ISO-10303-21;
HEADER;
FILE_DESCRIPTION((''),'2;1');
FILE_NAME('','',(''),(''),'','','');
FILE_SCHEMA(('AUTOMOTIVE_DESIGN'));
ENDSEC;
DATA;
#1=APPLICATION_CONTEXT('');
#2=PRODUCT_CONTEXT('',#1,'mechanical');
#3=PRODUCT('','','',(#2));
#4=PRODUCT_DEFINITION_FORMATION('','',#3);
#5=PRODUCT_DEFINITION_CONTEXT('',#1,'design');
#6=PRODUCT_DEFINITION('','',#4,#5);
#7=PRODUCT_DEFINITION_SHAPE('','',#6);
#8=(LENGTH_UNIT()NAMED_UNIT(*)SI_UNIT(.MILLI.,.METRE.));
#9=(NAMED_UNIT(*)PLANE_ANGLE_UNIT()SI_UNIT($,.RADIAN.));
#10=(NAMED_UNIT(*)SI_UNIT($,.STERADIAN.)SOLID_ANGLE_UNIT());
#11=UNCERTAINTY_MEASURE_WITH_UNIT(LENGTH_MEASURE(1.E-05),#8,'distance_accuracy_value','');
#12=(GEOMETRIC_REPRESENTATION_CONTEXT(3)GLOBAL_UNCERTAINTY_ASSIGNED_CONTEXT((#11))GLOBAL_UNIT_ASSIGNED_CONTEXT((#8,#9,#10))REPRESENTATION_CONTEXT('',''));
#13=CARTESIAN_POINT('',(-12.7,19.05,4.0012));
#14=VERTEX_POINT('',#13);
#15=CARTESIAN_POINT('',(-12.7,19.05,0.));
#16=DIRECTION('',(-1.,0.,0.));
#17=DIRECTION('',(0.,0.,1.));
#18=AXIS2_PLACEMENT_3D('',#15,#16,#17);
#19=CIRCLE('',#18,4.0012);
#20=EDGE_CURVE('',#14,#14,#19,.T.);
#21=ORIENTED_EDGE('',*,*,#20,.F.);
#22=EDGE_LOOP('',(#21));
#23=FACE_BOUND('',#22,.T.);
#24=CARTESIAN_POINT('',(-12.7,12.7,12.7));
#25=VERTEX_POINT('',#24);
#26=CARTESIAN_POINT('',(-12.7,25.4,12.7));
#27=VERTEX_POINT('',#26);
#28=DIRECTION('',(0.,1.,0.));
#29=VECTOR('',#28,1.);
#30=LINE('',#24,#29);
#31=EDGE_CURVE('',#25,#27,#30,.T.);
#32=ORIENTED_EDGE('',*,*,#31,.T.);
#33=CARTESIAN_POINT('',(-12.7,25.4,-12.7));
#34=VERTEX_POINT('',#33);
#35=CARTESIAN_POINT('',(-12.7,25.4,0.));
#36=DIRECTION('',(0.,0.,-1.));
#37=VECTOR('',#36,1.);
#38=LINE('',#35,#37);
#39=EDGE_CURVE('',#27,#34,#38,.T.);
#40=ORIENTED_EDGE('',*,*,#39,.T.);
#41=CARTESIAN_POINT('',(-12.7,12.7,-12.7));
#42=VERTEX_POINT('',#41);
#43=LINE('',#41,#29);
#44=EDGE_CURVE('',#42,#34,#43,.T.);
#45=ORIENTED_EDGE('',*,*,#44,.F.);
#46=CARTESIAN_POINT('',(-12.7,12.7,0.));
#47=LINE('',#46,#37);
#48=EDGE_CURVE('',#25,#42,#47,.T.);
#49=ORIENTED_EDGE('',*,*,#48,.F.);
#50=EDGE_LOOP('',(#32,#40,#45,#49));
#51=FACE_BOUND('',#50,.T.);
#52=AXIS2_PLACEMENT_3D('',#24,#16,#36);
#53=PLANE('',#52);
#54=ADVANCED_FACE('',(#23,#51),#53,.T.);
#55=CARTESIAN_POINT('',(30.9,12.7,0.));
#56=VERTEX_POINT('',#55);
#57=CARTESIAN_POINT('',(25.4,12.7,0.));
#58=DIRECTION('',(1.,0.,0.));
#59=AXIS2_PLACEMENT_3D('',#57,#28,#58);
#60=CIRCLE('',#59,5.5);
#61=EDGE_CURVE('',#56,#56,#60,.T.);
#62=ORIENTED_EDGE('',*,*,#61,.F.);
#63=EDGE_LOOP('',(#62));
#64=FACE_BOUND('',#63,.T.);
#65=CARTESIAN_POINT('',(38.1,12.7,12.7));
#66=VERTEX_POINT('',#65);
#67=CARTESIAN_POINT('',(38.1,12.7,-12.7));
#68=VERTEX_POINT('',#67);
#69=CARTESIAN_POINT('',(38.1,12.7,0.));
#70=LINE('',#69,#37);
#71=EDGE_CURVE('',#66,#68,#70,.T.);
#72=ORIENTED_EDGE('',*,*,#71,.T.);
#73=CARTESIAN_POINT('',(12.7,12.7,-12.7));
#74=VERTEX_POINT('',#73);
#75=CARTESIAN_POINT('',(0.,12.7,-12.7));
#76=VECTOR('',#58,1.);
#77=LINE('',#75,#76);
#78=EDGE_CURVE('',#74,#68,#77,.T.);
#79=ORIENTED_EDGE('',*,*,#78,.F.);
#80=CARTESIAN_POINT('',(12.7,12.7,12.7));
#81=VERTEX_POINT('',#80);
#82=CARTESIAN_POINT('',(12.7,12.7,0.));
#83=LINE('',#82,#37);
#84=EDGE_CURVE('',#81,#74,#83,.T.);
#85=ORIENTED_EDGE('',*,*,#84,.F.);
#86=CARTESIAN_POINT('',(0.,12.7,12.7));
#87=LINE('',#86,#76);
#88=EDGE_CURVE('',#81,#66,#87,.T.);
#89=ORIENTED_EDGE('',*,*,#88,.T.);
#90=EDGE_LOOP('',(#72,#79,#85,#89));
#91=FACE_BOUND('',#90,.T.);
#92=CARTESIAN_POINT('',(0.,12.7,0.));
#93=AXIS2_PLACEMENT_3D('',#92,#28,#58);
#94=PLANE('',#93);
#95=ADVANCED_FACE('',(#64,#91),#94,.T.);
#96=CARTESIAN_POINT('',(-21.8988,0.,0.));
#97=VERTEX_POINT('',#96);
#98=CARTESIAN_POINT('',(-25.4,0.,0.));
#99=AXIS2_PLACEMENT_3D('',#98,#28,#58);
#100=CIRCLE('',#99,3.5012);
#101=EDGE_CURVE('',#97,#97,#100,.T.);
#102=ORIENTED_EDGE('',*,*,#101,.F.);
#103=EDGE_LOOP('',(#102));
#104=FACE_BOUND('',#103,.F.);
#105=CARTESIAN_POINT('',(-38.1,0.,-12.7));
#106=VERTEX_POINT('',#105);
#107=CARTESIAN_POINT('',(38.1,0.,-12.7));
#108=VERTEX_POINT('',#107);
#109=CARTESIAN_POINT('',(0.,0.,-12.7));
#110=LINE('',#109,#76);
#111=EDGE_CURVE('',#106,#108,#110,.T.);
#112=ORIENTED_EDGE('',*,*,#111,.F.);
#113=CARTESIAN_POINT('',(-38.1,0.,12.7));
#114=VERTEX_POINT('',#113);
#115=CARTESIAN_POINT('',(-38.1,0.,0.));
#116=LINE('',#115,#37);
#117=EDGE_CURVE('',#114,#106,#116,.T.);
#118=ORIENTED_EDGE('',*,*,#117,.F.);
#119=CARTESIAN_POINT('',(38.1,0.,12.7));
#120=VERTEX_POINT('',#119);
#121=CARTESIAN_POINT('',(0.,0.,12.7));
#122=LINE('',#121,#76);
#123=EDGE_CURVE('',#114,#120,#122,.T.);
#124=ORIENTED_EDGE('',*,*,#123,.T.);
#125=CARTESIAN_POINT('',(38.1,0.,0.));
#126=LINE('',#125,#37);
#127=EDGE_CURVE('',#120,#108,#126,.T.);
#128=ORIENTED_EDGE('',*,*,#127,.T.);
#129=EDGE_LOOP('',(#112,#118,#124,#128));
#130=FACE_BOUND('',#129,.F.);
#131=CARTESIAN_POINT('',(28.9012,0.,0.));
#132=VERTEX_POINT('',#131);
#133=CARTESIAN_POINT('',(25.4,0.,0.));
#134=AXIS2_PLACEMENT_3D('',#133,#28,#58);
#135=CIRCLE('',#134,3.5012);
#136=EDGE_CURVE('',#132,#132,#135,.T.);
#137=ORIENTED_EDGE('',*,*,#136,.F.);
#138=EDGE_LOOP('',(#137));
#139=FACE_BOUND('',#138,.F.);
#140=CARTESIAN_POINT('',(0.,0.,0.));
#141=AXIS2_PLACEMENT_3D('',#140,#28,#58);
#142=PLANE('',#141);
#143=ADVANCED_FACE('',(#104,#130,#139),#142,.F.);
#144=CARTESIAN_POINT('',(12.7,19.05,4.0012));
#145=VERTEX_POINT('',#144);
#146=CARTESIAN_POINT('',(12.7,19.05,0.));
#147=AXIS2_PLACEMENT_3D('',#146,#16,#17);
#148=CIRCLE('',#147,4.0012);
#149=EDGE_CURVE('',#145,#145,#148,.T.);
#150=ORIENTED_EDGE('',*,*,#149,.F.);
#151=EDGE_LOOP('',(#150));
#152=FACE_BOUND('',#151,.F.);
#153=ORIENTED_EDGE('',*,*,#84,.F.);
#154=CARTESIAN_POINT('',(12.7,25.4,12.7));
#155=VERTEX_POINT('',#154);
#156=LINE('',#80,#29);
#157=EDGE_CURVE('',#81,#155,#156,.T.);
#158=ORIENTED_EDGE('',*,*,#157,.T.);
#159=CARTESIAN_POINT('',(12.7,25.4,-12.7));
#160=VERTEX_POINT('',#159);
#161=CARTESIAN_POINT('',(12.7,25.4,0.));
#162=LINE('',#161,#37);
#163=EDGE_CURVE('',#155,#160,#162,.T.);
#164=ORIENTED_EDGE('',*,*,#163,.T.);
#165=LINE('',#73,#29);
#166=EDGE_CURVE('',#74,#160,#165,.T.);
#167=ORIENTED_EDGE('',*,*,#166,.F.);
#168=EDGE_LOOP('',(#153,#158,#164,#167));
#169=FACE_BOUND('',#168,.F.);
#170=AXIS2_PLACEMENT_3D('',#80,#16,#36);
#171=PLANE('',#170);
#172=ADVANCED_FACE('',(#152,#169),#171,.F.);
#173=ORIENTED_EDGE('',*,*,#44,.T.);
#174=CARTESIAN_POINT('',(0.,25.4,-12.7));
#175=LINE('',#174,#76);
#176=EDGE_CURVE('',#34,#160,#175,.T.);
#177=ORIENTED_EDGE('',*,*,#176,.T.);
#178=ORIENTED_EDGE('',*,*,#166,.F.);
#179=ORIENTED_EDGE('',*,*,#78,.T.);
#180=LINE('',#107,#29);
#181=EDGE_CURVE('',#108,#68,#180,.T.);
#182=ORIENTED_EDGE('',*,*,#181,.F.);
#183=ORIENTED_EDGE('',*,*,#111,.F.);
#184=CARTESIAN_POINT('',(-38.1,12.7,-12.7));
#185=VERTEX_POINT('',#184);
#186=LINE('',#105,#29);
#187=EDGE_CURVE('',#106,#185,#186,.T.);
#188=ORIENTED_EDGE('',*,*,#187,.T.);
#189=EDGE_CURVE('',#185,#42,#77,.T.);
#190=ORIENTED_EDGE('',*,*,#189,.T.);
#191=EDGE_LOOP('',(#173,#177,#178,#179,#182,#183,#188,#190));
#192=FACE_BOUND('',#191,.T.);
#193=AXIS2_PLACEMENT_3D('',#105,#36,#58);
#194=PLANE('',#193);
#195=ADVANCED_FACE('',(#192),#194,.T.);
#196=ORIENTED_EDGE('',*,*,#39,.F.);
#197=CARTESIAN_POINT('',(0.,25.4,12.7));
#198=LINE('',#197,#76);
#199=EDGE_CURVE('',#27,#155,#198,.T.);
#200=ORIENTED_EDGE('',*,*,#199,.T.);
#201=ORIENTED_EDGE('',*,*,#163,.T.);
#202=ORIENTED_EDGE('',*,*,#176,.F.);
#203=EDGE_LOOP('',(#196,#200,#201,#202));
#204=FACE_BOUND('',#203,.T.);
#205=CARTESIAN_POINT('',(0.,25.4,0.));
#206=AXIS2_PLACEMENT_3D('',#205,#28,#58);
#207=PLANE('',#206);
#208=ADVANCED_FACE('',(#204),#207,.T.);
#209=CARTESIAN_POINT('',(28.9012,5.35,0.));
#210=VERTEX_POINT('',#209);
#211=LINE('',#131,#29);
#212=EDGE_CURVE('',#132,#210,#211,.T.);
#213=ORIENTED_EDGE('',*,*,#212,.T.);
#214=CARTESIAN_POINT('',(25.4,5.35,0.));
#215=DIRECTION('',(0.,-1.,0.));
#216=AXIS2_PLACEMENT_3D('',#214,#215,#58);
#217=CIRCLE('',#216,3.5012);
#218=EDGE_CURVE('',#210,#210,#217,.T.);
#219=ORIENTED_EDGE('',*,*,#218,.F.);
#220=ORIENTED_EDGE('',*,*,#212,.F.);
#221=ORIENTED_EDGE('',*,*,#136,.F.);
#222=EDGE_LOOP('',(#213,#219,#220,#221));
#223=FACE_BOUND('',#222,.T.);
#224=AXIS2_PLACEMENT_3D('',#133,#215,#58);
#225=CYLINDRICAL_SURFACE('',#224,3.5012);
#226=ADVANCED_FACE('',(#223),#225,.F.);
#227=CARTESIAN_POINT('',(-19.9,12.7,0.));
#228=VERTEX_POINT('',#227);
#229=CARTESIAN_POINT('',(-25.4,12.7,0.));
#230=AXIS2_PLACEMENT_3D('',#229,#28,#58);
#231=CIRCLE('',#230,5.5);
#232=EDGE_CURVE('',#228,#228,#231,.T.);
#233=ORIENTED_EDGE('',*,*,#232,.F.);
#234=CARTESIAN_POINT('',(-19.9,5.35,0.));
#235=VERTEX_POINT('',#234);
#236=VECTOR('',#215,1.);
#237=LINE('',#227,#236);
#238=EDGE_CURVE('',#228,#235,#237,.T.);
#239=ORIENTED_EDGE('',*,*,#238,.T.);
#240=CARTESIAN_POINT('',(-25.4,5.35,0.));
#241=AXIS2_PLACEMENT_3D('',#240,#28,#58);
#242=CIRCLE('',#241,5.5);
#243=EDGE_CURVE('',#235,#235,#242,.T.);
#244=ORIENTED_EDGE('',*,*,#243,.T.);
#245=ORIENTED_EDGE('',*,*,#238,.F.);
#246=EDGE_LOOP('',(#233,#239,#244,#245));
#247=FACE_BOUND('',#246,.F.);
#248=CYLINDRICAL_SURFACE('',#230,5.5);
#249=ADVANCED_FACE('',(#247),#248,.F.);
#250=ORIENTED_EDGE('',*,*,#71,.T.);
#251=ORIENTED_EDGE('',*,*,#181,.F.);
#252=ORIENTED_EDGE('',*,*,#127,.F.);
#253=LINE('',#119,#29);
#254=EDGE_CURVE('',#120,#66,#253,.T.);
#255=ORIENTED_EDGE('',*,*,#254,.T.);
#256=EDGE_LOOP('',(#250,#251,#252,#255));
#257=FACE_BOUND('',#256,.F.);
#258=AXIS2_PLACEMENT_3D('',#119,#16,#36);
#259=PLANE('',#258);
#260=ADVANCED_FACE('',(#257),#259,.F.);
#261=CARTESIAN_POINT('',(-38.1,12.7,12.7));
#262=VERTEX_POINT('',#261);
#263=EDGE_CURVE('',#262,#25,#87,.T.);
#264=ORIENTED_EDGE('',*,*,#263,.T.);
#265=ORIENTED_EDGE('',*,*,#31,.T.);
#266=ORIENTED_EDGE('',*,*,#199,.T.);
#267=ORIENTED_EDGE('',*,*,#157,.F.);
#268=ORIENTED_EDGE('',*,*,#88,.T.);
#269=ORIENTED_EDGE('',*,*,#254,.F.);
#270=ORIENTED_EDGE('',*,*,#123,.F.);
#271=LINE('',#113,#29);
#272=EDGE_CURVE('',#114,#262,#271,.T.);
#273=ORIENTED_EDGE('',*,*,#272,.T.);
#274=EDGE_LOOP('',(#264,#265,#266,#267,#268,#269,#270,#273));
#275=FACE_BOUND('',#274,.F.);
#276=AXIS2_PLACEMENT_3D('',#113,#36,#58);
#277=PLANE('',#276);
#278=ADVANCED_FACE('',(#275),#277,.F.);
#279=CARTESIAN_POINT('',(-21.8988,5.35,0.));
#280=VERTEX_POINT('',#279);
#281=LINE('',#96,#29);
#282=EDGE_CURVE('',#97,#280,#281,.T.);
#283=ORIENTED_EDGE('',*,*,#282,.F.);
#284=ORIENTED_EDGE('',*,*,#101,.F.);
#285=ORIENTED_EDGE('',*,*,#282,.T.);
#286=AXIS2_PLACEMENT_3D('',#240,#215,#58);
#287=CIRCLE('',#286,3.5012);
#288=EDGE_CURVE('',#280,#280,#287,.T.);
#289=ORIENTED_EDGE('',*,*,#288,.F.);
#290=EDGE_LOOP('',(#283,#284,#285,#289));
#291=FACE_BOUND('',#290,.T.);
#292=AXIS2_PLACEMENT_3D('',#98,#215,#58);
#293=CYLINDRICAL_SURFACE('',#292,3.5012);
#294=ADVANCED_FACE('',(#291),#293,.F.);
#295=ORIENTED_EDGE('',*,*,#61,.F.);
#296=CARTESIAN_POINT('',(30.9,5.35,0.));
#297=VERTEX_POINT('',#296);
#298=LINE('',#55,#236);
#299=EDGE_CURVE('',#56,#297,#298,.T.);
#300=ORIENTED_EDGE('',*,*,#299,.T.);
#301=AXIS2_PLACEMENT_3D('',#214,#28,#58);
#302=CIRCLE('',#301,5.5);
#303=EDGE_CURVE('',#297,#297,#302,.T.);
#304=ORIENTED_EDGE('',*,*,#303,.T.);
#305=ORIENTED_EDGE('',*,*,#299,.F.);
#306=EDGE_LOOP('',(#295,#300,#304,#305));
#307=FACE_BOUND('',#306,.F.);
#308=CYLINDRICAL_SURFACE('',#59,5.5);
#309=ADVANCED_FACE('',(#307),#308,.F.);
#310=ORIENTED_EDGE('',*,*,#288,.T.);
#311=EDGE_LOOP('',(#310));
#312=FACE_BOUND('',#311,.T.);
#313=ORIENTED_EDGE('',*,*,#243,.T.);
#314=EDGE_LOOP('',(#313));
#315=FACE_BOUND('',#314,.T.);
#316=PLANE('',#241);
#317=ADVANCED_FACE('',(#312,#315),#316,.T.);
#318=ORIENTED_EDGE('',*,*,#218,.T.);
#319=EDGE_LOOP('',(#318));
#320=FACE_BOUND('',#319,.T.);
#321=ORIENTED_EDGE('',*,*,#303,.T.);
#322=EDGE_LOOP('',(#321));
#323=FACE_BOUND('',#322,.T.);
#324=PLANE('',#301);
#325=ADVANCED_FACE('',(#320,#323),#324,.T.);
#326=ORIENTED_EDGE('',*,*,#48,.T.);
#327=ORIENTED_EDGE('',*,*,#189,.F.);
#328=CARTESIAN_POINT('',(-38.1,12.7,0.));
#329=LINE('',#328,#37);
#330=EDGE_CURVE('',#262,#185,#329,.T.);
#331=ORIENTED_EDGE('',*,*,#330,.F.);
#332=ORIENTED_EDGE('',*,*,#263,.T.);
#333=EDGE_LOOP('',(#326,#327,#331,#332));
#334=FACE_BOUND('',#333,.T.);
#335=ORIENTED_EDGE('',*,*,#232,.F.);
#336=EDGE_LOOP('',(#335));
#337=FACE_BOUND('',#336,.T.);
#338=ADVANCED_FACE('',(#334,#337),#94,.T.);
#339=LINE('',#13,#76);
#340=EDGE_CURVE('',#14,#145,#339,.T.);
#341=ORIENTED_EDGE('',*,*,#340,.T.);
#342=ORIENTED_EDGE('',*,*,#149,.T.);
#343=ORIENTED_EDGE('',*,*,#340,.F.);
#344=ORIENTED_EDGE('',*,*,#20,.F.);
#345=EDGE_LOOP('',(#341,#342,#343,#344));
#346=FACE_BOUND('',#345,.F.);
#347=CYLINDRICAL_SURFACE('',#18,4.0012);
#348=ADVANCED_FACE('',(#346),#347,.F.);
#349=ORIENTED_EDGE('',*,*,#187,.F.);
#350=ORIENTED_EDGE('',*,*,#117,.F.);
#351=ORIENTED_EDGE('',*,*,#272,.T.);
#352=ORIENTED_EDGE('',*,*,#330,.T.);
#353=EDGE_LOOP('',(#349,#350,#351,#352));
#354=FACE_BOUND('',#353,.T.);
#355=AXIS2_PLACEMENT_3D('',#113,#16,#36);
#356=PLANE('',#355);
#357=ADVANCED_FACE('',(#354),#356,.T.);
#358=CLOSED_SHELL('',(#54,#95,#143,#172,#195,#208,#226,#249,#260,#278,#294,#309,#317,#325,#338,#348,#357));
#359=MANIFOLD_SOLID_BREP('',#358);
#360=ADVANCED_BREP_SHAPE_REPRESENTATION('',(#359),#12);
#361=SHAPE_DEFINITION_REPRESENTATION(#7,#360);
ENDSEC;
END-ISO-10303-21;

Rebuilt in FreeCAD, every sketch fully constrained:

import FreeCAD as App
import Part
import Sketcher
Q = App.Units.Quantity


def add_polygon(sketch, points):
    """Adds a closed chain of lines whose ends are joined by coincident constraints."""
    first, n = sketch.GeometryCount, len(points)
    for a, b in zip(points, points[1:] + points[:1]):
        sketch.addGeometry(Part.LineSegment(App.Vector(*a, 0), App.Vector(*b, 0)), False)
    for i in range(n):
        sketch.addConstraint(Sketcher.Constraint("Coincident", first + i, 2, first + (i + 1) % n, 1))

doc = App.newDocument("Part")
body = doc.addObject("PartDesign::Body", "Body")

sketch1 = doc.addObject("Sketcher::SketchObject", "Sketch")
body.addObject(sketch1)
sketch1.AttachmentSupport = (doc.XZ_Plane, [""])
sketch1.MapMode = "FlatFace"
add_polygon(sketch1, [(-38.1, -12.7), (-38.1, 12.7), (38.1, 12.7), (38.1, -12.7)])
sketch1.addGeometry(Part.Circle(App.Vector(-25.4, 0, 0), App.Vector(0, 0, 1), 3.5), False)
sketch1.addGeometry(Part.Circle(App.Vector(25.4, 0, 0), App.Vector(0, 0, 1), 3.5), False)
sketch1.addConstraint([
    Sketcher.Constraint("Vertical", 0),
    Sketcher.Constraint("Horizontal", 1),
    Sketcher.Constraint("Vertical", 2),
    Sketcher.Constraint("Horizontal", 3),
    Sketcher.Constraint("Equal", 4, 5),
    Sketcher.Constraint("Symmetric", 4, 3, 5, 3, -1, 1),
    Sketcher.Constraint("Symmetric", 0, 2, 2, 2, -1, 1),
    Sketcher.Constraint("PointOnObject", 4, 3, -1),
    Sketcher.Constraint("DistanceX", 1, 1, 1, 2, Q("3 in")),
    Sketcher.Constraint("DistanceY", 0, 1, 0, 2, Q("1 in")),
    Sketcher.Constraint("DistanceX", 4, 3, -1, 1, Q("1 in")),
    Sketcher.Constraint("Diameter", 4, Q("7.0024 mm")),
])
pad1 = doc.addObject("PartDesign::Pad", "Pad")
body.addObject(pad1)
pad1.Profile = sketch1
pad1.Length = Q("0.5 in")
pad1.Reversed = True

sketch2 = doc.addObject("Sketcher::SketchObject", "Sketch001")
body.addObject(sketch2)
sketch2.AttachmentSupport = (doc.XZ_Plane, [""])
sketch2.MapMode = "FlatFace"
sketch2.AttachmentOffset = App.Placement(App.Vector(0, 0, -0.5 * 25.4), App.Rotation())
add_polygon(sketch2, [(-13, -13), (-13, 13), (13, 13), (13, -13)])
sketch2.addConstraint([
    Sketcher.Constraint("Vertical", 0),
    Sketcher.Constraint("Horizontal", 1),
    Sketcher.Constraint("Vertical", 2),
    Sketcher.Constraint("Horizontal", 3),
    Sketcher.Constraint("Symmetric", 0, 2, 2, 2, -1, 1),
    Sketcher.Constraint("Equal", 3, 0),
    Sketcher.Constraint("DistanceX", 1, 1, 1, 2, Q("1 in")),
])
pad2 = doc.addObject("PartDesign::Pad", "Pad001")
body.addObject(pad2)
pad2.Profile = sketch2
pad2.Length = Q("0.5 in")
pad2.Reversed = True

sketch3 = doc.addObject("Sketcher::SketchObject", "Sketch002")
body.addObject(sketch3)
sketch3.AttachmentSupport = (doc.YZ_Plane, [""])
sketch3.MapMode = "FlatFace"
sketch3.AttachmentOffset = App.Placement(App.Vector(0, 0, -0.5 * 25.4), App.Rotation())
sketch3.addGeometry(Part.Circle(App.Vector(19.1, 0, 0), App.Vector(0, 0, 1), 4), False)
sketch3.addConstraint([
    Sketcher.Constraint("PointOnObject", 0, 3, -1),
    Sketcher.Constraint("Diameter", 0, Q("8.0024 mm")),
    Sketcher.Constraint("DistanceX", -1, 1, 0, 3, Q("0.75 in")),
])
pocket1 = doc.addObject("PartDesign::Pocket", "Pocket")
body.addObject(pocket1)
pocket1.Profile = sketch3
pocket1.Length = 43.7
pocket1.Reversed = True

sketch4 = doc.addObject("Sketcher::SketchObject", "Sketch003")
body.addObject(sketch4)
sketch4.AttachmentSupport = (doc.XZ_Plane, [""])
sketch4.MapMode = "FlatFace"
sketch4.AttachmentOffset = App.Placement(App.Vector(0, 0, -0.5 * 25.4), App.Rotation())
sketch4.addGeometry([
    Part.Circle(App.Vector(-25, 0, 0), App.Vector(0, 0, 1), 6),
    Part.Circle(App.Vector(25, 0, 0), App.Vector(0, 0, 1), 6),
], False)
sketch4.addConstraint([
    Sketcher.Constraint("Equal", 0, 1),
    Sketcher.Constraint("Symmetric", 0, 3, 1, 3, -1, 1),
    Sketcher.Constraint("PointOnObject", 0, 3, -1),
    Sketcher.Constraint("DistanceX", 0, 3, -1, 1, Q("1 in")),
    Sketcher.Constraint("Diameter", 0, Q("11 mm")),
])
pocket2 = doc.addObject("PartDesign::Pocket", "Pocket001")
body.addObject(pocket2)
pocket2.Profile = sketch4
pocket2.Length = 7.35
pocket2.Reversed = True

doc.recompute()
